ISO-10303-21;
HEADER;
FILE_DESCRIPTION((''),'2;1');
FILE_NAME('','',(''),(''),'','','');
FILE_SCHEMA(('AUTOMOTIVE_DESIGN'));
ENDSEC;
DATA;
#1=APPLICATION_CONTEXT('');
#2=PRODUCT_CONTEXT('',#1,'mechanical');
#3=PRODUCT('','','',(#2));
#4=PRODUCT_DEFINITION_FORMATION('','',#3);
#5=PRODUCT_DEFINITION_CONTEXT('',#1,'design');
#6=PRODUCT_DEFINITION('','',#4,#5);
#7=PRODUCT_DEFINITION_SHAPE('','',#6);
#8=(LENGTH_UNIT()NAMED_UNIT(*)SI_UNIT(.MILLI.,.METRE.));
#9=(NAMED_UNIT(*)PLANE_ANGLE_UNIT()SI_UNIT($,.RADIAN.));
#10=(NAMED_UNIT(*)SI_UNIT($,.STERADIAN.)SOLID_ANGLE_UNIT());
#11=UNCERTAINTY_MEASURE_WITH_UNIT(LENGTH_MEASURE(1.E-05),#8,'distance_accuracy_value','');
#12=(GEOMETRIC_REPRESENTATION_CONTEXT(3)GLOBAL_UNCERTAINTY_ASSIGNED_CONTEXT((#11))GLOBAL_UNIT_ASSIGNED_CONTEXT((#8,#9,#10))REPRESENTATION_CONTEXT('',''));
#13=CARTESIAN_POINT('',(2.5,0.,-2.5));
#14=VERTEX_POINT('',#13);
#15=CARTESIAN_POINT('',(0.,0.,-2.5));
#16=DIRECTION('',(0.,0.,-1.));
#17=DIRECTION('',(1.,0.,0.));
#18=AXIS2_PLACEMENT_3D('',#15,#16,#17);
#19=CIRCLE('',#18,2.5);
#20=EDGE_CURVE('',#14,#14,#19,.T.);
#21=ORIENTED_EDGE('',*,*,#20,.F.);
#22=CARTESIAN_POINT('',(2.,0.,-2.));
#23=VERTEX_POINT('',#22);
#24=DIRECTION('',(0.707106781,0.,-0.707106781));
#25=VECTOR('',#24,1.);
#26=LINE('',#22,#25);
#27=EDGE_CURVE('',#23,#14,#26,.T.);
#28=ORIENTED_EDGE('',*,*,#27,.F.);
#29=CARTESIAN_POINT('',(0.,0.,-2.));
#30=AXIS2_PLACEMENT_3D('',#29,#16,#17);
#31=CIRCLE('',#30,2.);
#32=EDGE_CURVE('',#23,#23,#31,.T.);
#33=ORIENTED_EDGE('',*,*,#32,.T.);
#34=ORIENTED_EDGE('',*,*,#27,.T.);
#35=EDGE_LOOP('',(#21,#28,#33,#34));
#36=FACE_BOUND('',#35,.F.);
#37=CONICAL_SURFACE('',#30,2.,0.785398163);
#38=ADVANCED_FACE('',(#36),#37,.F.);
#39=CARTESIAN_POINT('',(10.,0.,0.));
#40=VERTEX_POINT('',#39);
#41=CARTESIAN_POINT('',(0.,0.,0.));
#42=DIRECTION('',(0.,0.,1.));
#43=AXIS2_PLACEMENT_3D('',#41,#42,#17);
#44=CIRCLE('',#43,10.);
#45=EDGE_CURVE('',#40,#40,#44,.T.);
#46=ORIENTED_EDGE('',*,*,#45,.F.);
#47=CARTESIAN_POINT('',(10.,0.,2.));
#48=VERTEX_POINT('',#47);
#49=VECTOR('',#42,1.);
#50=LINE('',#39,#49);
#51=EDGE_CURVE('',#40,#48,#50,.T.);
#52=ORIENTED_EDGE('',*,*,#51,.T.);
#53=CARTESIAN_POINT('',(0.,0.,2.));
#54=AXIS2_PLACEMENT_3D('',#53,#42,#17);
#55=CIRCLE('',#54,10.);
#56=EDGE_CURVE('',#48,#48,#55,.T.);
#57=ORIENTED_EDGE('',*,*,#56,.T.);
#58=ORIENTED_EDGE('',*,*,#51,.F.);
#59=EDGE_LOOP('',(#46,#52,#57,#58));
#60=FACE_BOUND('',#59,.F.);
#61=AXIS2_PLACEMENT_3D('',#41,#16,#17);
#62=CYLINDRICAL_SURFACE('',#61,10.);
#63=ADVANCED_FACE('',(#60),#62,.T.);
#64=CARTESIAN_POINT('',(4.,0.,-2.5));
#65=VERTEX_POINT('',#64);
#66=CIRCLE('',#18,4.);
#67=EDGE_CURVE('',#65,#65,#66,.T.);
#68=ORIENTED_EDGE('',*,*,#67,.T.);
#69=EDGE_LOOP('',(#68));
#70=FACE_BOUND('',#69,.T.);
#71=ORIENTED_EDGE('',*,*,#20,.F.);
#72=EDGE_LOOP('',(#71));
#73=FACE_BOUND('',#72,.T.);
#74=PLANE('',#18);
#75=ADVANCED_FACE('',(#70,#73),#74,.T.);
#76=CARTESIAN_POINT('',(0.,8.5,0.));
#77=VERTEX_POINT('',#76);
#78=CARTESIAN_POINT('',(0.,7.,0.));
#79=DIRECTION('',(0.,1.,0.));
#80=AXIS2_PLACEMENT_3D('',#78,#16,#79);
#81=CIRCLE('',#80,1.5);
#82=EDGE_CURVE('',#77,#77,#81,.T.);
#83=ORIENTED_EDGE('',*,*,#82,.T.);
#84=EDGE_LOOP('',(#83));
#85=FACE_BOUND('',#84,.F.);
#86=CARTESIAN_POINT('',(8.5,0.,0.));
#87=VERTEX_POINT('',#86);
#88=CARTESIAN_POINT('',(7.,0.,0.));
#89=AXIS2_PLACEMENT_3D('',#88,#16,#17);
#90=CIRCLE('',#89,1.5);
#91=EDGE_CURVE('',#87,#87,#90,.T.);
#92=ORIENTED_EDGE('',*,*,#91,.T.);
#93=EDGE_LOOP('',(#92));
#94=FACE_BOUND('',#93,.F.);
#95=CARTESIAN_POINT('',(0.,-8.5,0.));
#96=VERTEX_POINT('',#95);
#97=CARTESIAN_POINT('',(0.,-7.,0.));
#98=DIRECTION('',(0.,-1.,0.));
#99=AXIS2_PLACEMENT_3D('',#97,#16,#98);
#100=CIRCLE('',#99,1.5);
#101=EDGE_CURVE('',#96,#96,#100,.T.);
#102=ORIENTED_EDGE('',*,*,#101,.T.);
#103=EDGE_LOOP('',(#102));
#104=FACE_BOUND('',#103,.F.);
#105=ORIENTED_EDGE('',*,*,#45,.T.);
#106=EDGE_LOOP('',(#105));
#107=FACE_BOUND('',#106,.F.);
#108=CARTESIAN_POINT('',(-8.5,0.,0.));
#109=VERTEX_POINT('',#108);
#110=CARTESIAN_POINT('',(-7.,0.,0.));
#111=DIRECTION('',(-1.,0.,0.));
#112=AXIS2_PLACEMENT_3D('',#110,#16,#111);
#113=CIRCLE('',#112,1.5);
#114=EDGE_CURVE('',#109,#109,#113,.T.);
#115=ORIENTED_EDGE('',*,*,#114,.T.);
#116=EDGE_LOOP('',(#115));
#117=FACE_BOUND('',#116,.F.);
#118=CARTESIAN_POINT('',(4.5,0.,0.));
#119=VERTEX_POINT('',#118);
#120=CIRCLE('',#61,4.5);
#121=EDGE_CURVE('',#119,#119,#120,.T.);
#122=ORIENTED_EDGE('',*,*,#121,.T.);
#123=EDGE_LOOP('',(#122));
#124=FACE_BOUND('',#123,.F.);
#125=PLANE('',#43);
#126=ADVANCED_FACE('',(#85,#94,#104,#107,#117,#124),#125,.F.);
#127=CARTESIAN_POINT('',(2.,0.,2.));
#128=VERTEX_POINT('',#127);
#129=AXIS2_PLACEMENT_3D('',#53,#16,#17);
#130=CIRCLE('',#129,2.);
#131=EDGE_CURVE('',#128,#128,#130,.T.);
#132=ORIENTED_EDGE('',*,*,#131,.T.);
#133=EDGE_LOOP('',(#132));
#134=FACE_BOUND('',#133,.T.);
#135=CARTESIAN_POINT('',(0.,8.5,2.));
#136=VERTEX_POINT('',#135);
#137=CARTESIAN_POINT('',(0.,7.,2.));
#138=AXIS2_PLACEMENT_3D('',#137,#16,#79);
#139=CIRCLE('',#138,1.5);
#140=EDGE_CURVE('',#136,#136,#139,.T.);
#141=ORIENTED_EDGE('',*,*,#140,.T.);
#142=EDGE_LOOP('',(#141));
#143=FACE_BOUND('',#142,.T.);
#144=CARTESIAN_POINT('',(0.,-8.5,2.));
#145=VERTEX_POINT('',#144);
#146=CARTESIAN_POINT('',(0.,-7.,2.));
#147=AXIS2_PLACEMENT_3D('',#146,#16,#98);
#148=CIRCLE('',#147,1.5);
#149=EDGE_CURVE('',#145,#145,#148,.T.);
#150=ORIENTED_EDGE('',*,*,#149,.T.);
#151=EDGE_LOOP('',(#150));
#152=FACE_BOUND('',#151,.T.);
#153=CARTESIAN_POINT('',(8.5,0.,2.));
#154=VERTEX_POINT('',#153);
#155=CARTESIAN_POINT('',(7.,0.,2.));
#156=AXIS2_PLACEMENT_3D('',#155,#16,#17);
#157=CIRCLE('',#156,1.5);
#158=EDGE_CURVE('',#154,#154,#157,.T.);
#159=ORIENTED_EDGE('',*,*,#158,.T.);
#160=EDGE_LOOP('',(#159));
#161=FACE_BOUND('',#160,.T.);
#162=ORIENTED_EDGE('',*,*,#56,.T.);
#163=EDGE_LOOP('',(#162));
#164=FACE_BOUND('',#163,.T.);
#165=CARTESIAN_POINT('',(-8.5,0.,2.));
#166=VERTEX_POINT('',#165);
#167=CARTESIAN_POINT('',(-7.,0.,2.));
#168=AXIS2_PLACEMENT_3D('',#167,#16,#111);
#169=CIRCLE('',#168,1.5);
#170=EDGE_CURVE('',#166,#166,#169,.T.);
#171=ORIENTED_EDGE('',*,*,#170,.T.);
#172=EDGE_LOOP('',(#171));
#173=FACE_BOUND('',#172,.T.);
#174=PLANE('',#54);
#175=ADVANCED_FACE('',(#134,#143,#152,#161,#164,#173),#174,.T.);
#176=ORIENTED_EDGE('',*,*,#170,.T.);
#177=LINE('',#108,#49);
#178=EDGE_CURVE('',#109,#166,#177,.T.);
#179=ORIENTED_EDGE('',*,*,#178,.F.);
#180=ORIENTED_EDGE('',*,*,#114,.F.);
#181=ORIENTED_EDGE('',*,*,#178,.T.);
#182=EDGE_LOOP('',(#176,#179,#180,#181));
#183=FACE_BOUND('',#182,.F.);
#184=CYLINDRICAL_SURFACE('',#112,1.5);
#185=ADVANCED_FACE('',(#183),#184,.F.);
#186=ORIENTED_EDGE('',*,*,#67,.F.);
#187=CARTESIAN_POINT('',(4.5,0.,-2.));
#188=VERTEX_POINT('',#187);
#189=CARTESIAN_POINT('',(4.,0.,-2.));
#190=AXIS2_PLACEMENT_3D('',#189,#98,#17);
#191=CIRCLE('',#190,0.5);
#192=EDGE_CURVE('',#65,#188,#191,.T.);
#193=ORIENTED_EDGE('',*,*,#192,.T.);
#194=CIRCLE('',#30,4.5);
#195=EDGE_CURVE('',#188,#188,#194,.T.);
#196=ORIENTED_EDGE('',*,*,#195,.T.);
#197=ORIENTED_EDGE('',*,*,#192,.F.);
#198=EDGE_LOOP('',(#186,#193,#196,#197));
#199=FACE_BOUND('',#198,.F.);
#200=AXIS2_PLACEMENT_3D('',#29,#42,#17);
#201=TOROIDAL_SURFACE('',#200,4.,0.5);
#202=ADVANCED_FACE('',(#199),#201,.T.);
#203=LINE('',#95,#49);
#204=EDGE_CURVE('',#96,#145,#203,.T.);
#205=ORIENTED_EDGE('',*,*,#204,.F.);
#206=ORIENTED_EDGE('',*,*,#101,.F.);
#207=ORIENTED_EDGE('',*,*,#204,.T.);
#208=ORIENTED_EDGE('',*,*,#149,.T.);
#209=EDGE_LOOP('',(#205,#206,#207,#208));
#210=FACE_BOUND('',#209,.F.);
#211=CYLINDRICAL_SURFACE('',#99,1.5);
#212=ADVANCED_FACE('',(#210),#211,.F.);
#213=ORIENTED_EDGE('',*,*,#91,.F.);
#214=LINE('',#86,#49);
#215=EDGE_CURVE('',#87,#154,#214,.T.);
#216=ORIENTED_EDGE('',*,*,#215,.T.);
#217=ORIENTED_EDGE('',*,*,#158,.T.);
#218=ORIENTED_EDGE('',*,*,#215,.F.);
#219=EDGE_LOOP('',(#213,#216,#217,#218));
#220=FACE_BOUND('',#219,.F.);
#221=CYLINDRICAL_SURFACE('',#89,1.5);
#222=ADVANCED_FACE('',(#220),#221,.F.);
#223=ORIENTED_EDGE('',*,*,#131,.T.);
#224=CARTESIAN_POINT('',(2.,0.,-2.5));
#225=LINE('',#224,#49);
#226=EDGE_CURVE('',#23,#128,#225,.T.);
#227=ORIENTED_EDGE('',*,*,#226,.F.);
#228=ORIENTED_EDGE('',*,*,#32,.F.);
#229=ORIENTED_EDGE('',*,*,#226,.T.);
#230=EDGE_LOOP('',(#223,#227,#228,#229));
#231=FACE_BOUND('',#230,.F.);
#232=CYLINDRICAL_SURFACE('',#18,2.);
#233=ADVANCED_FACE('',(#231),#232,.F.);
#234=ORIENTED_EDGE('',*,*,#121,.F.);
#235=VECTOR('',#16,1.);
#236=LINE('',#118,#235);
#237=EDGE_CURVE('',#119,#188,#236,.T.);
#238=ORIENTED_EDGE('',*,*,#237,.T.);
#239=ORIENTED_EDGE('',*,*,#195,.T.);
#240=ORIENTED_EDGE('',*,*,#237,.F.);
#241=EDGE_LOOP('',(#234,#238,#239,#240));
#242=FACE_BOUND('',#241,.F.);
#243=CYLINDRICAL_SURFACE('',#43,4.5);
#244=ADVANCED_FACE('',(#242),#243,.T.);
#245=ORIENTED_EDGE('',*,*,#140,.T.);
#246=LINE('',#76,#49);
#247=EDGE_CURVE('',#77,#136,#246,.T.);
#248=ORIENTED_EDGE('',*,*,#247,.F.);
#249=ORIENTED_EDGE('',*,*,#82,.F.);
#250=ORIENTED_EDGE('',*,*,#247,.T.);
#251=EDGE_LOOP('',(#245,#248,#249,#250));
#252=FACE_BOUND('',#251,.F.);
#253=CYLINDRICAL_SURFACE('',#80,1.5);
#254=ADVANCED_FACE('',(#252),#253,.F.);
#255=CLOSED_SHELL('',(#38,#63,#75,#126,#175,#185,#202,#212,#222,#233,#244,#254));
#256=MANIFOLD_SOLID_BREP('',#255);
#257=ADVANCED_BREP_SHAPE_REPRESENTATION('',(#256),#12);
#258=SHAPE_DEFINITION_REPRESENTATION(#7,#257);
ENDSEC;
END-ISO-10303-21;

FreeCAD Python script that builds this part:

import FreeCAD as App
import Part
import Sketcher

V = App.Vector
Q = App.Units.Quantity


def edges_at(feature, points):
    """Names of the edges that pass closest to the given points."""
    edges = feature.Shape.Edges
    near = lambda p: min(range(len(edges)), key=lambda i: edges[i].distToShape(Part.Vertex(*p))[0])
    return sorted({f"Edge{near(p) + 1}" for p in points})

doc = App.newDocument("Part")
body = doc.addObject("PartDesign::Body", "Body")

# Sketch on XY plane
sketch1 = body.newObject("Sketcher::SketchObject", "Sketch")
sketch1.AttachmentSupport = (doc.getObject("XY_Plane"), [""])
sketch1.MapMode = "FlatFace"
sketch1.addGeometry(Part.Circle(V(0, 0, 0), V(0, 0, 1), 10), False)
sketch1.addConstraint(Sketcher.Constraint("Coincident", 0, 3, -1, 1))
sketch1.addConstraint(Sketcher.Constraint("Diameter", 0, Q("20 mm")))
pad1 = body.newObject("PartDesign::Pad", "Pad")
pad1.Profile = sketch1
pad1.Length = 2

# Sketch on XY plane
sketch2 = body.newObject("Sketcher::SketchObject", "Sketch001")
sketch2.AttachmentSupport = (doc.getObject("XY_Plane"), [""])
sketch2.MapMode = "FlatFace"
sketch2.addGeometry(Part.Circle(V(0, 0, 0), V(0, 0, 1), 4.5), False)
sketch2.addConstraint(Sketcher.Constraint("Coincident", 0, 3, -1, 1))
sketch2.addConstraint(Sketcher.Constraint("Diameter", 0, Q("9 mm")))
pad2 = body.newObject("PartDesign::Pad", "Pad001")
pad2.Profile = sketch2
pad2.Length = 2.5
pad2.Reversed = True

# Sketch on XY plane
sketch3 = body.newObject("Sketcher::SketchObject", "Sketch002")
sketch3.AttachmentSupport = (doc.getObject("XY_Plane"), [""])
sketch3.MapMode = "FlatFace"
sketch3.AttachmentOffset = App.Placement(V(0, 0, -2.5), App.Rotation())
sketch3.addGeometry(Part.Circle(V(0, 0, 0), V(0, 0, 1), 2), False)
sketch3.addConstraint(Sketcher.Constraint("Coincident", 0, 3, -1, 1))
sketch3.addConstraint(Sketcher.Constraint("Diameter", 0, Q("4 mm")))
pocket1 = body.newObject("PartDesign::Pocket", "Pocket")
pocket1.Profile = sketch3
pocket1.Type = "ThroughAll"
pocket1.Reversed = True
doc.recompute()

chamfer = body.newObject("PartDesign::Chamfer", "Chamfer")
chamfer.Base = (pocket1, edges_at(pocket1, [(-2, 0, -2.5)]))
chamfer.Size = 0.5
doc.recompute()

fillet = body.newObject("PartDesign::Fillet", "Fillet")
fillet.Base = (chamfer, edges_at(chamfer, [(-4.5, 0, -2.5)]))
fillet.Radius = 0.5

# Sketch on XY plane
sketch4 = body.newObject("Sketcher::SketchObject", "Sketch003")
sketch4.AttachmentSupport = (doc.getObject("XY_Plane"), [""])
sketch4.MapMode = "FlatFace"
sketch4.addGeometry(Part.Circle(V(7, 0, 0), V(0, 0, 1), 1.5), False)
sketch4.addConstraint(Sketcher.Constraint("PointOnObject", 0, 3, -1))
sketch4.addConstraint(Sketcher.Constraint("Diameter", 0, Q("3 mm")))
sketch4.addConstraint(Sketcher.Constraint("DistanceX", -1, 1, 0, 3, Q("7 mm")))
pocket2 = body.newObject("PartDesign::Pocket", "Pocket001")
pocket2.Profile = sketch4
pocket2.Type = "ThroughAll"
pocket2.Reversed = True
doc.recompute()

polarpattern = body.newObject("PartDesign::PolarPattern", "PolarPattern")
polarpattern.Originals = [pocket2]
polarpattern.Axis = (doc.getObject("Z_Axis"), [""])
polarpattern.Angle = 360
polarpattern.Occurrences = 4
body.Tip = polarpattern

doc.recompute()
